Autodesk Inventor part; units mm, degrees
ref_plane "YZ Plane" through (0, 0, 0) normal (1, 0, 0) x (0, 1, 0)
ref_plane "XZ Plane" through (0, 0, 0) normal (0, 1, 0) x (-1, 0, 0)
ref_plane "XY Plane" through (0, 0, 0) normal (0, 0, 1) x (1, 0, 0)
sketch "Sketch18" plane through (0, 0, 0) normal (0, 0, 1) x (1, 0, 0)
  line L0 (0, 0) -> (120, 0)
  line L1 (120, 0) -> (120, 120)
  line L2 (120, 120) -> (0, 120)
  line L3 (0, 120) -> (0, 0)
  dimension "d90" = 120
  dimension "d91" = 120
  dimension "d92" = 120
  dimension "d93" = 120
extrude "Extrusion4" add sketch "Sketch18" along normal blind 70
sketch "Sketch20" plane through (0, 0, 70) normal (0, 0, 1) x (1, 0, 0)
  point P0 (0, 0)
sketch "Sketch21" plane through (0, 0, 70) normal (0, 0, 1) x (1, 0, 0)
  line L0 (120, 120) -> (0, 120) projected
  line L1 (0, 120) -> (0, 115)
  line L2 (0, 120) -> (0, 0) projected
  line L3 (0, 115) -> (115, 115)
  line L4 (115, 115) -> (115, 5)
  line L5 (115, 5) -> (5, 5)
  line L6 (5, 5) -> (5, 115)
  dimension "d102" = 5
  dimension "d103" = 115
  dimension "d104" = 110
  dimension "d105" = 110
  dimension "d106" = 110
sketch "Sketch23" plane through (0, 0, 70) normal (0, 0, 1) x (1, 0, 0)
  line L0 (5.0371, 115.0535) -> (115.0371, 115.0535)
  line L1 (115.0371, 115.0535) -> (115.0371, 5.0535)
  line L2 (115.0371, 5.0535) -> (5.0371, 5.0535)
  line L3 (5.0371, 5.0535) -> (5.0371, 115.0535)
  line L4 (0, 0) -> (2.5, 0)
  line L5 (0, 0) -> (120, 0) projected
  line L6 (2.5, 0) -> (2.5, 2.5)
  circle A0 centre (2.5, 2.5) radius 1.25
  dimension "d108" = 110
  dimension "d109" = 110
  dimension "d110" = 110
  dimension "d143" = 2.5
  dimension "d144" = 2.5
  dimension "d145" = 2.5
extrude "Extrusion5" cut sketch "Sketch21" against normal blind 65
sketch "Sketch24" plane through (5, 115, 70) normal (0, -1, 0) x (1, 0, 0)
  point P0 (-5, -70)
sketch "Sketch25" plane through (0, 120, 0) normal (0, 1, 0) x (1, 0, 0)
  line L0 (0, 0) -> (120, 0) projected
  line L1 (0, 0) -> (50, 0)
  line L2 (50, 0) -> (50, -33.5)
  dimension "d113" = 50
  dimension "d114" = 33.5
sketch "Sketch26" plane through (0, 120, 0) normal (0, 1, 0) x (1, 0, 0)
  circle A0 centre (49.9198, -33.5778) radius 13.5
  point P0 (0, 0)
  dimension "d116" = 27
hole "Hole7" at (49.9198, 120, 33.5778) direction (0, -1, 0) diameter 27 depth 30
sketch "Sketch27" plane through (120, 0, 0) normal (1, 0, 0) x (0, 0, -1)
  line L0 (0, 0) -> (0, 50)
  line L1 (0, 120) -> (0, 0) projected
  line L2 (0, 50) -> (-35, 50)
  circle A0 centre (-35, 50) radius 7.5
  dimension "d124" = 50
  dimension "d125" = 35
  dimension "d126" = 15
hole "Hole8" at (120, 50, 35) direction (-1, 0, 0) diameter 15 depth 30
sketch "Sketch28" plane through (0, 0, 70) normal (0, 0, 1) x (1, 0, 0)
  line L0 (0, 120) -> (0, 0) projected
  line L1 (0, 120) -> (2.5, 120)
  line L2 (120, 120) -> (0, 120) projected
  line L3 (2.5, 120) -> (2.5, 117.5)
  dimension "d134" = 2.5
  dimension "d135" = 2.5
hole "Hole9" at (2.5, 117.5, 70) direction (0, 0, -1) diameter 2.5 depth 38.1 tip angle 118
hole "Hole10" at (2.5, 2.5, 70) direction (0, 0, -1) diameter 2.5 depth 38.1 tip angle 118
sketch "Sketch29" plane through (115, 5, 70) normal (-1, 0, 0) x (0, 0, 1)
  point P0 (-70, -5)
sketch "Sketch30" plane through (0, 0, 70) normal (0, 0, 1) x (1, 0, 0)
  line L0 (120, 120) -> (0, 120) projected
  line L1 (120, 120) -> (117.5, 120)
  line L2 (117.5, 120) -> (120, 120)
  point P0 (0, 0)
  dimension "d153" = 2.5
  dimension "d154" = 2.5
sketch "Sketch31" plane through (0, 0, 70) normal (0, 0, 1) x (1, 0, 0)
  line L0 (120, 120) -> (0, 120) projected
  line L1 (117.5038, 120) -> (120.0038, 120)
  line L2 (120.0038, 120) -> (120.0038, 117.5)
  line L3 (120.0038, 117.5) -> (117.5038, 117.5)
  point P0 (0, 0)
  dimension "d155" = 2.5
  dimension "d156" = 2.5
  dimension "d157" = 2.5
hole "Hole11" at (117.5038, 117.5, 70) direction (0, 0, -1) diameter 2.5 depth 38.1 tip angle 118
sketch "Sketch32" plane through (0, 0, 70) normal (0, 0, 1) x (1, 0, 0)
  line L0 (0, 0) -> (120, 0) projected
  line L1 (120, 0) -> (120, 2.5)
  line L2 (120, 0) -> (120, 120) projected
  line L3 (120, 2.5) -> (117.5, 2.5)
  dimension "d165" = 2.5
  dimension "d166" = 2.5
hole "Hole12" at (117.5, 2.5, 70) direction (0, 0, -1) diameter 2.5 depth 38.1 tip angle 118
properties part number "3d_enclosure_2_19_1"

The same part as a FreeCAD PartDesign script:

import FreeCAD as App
import Part
import Sketcher

V = App.Vector
Q = App.Units.Quantity

doc = App.newDocument("Part")
body = doc.addObject("PartDesign::Body", "Body")

# Sketch on XY plane
sketch1 = body.newObject("Sketcher::SketchObject", "Sketch")
sketch1.AttachmentSupport = (doc.getObject("XY_Plane"), [""])
sketch1.MapMode = "FlatFace"
sketch1.addGeometry(Part.LineSegment(V(0, 120, 0), V(0, 0, 0)), False)
sketch1.addGeometry(Part.LineSegment(V(0, 0, 0), V(120, 0, 0)), False)
sketch1.addGeometry(Part.LineSegment(V(120, 0, 0), V(120, 120, 0)), False)
sketch1.addGeometry(Part.LineSegment(V(120, 120, 0), V(0, 120, 0)), False)
sketch1.addConstraint(Sketcher.Constraint("Coincident", 0, 2, 1, 1))
sketch1.addConstraint(Sketcher.Constraint("Coincident", 1, 2, 2, 1))
sketch1.addConstraint(Sketcher.Constraint("Coincident", 2, 2, 3, 1))
sketch1.addConstraint(Sketcher.Constraint("Coincident", 3, 2, 0, 1))
sketch1.addConstraint(Sketcher.Constraint("Vertical", 0))
sketch1.addConstraint(Sketcher.Constraint("Horizontal", 1))
sketch1.addConstraint(Sketcher.Constraint("Vertical", 2))
sketch1.addConstraint(Sketcher.Constraint("Horizontal", 3))
sketch1.addConstraint(Sketcher.Constraint("Coincident", 0, 2, -1, 1))
sketch1.addConstraint(Sketcher.Constraint("Equal", 3, 0))
sketch1.addConstraint(Sketcher.Constraint("DistanceX", 1, 1, 1, 2, Q("120 mm")))
pad1 = body.newObject("PartDesign::Pad", "Pad")
pad1.Profile = sketch1
pad1.Length = 70

# Sketch on XY plane
sketch2 = body.newObject("Sketcher::SketchObject", "Sketch001")
sketch2.AttachmentSupport = (doc.getObject("XY_Plane"), [""])
sketch2.MapMode = "FlatFace"
sketch2.AttachmentOffset = App.Placement(V(0, 0, 70), App.Rotation())
sketch2.addGeometry(Part.LineSegment(V(115, 115, 0), V(5, 115, 0)), False)
sketch2.addGeometry(Part.LineSegment(V(5, 115, 0), V(5, 5, 0)), False)
sketch2.addGeometry(Part.LineSegment(V(5, 5, 0), V(115, 5, 0)), False)
sketch2.addGeometry(Part.LineSegment(V(115, 5, 0), V(115, 115, 0)), False)
sketch2.addConstraint(Sketcher.Constraint("Coincident", 0, 2, 1, 1))
sketch2.addConstraint(Sketcher.Constraint("Coincident", 1, 2, 2, 1))
sketch2.addConstraint(Sketcher.Constraint("Coincident", 2, 2, 3, 1))
sketch2.addConstraint(Sketcher.Constraint("Coincident", 3, 2, 0, 1))
sketch2.addConstraint(Sketcher.Constraint("Horizontal", 0))
sketch2.addConstraint(Sketcher.Constraint("Vertical", 1))
sketch2.addConstraint(Sketcher.Constraint("Horizontal", 2))
sketch2.addConstraint(Sketcher.Constraint("Vertical", 3))
sketch2.addConstraint(Sketcher.Constraint("Equal", 2, 1))
sketch2.addConstraint(Sketcher.Constraint("DistanceX", 0, 2, 0, 1, Q("110 mm")))
sketch2.addConstraint(Sketcher.Constraint("DistanceX", -1, 1, 0, 2, Q("5 mm")))
sketch2.addConstraint(Sketcher.Constraint("DistanceY", -1, 1, 0, 2, Q("115 mm")))
pocket1 = body.newObject("PartDesign::Pocket", "Pocket")
pocket1.Profile = sketch2
pocket1.Length = 65

# Sketch on XZ plane
sketch3 = body.newObject("Sketcher::SketchObject", "Sketch002")
sketch3.AttachmentSupport = (doc.getObject("XZ_Plane"), [""])
sketch3.MapMode = "FlatFace"
sketch3.AttachmentOffset = App.Placement(V(0, 0, -120), App.Rotation())
sketch3.addGeometry(Part.Circle(V(50, 34, 0), V(0, 0, 1), 14), False)
sketch3.addConstraint(Sketcher.Constraint("Diameter", 0, Q("27 mm")))
sketch3.addConstraint(Sketcher.Constraint("DistanceX", -1, 1, 0, 3, Q("49.9198 mm")))
sketch3.addConstraint(Sketcher.Constraint("DistanceY", -1, 1, 0, 3, Q("33.5778 mm")))
doc.recompute()
hole = body.newObject("PartDesign::Hole", "Hole")
hole.Profile = sketch3
hole.ThreadType = "None"
hole.Diameter = 27
hole.DepthType = "Dimension"
hole.Depth = 30
hole.DrillPoint = "Flat"
hole.Reversed = True

# Sketch on YZ plane
sketch4 = body.newObject("Sketcher::SketchObject", "Sketch003")
sketch4.AttachmentSupport = (doc.getObject("YZ_Plane"), [""])
sketch4.MapMode = "FlatFace"
sketch4.AttachmentOffset = App.Placement(V(0, 0, 120), App.Rotation())
sketch4.addGeometry(Part.Circle(V(50, 35, 0), V(0, 0, 1), 8), False)
sketch4.addConstraint(Sketcher.Constraint("Diameter", 0, Q("15 mm")))
sketch4.addConstraint(Sketcher.Constraint("DistanceX", -1, 1, 0, 3, Q("50 mm")))
sketch4.addConstraint(Sketcher.Constraint("DistanceY", -1, 1, 0, 3, Q("35 mm")))
doc.recompute()
hole2 = body.newObject("PartDesign::Hole", "Hole001")
hole2.Profile = sketch4
hole2.ThreadType = "None"
hole2.Diameter = 15
hole2.DepthType = "Dimension"
hole2.Depth = 30
hole2.DrillPoint = "Flat"

# Sketch on XY plane
sketch5 = body.newObject("Sketcher::SketchObject", "Sketch004")
sketch5.AttachmentSupport = (doc.getObject("XY_Plane"), [""])
sketch5.MapMode = "FlatFace"
sketch5.AttachmentOffset = App.Placement(V(0, 0, 70), App.Rotation())
sketch5.addGeometry(Part.Circle(V(2.5, 117.5, 0), V(0, 0, 1), 1.2), False)
sketch5.addConstraint(Sketcher.Constraint("Diameter", 0, Q("2.5 mm")))
sketch5.addConstraint(Sketcher.Constraint("DistanceX", -1, 1, 0, 3, Q("2.5 mm")))
sketch5.addConstraint(Sketcher.Constraint("DistanceY", -1, 1, 0, 3, Q("117.5 mm")))
doc.recompute()
hole3 = body.newObject("PartDesign::Hole", "Hole002")
hole3.Profile = sketch5
hole3.ThreadType = "None"
hole3.Diameter = 2.5
hole3.DepthType = "Dimension"
hole3.Depth = 38.1
hole3.DrillPoint = "Angled"
hole3.DrillPointAngle = 118

# Sketch on XY plane
sketch6 = body.newObject("Sketcher::SketchObject", "Sketch005")
sketch6.AttachmentSupport = (doc.getObject("XY_Plane"), [""])
sketch6.MapMode = "FlatFace"
sketch6.AttachmentOffset = App.Placement(V(0, 0, 70), App.Rotation())
sketch6.addGeometry(Part.Circle(V(2.5, 2.5, 0), V(0, 0, 1), 1.2), False)
sketch6.addConstraint(Sketcher.Constraint("Diameter", 0, Q("2.5 mm")))
sketch6.addConstraint(Sketcher.Constraint("DistanceX", -1, 1, 0, 3, Q("2.5 mm")))
sketch6.addConstraint(Sketcher.Constraint("DistanceY", -1, 1, 0, 3, Q("2.5 mm")))
doc.recompute()
hole4 = body.newObject("PartDesign::Hole", "Hole003")
hole4.Profile = sketch6
hole4.ThreadType = "None"
hole4.Diameter = 2.5
hole4.DepthType = "Dimension"
hole4.Depth = 38.1
hole4.DrillPoint = "Angled"
hole4.DrillPointAngle = 118

# Sketch on XY plane
sketch7 = body.newObject("Sketcher::SketchObject", "Sketch006")
sketch7.AttachmentSupport = (doc.getObject("XY_Plane"), [""])
sketch7.MapMode = "FlatFace"
sketch7.AttachmentOffset = App.Placement(V(0, 0, 70), App.Rotation())
sketch7.addGeometry(Part.Circle(V(117.5, 117.5, 0), V(0, 0, 1), 1.2), False)
sketch7.addConstraint(Sketcher.Constraint("Diameter", 0, Q("2.5 mm")))
sketch7.addConstraint(Sketcher.Constraint("DistanceY", -1, 1, 0, 3, Q("117.5 mm")))
sketch7.addConstraint(Sketcher.Constraint("DistanceX", -1, 1, 0, 3, Q("117.5038 mm")))
doc.recompute()
hole5 = body.newObject("PartDesign::Hole", "Hole004")
hole5.Profile = sketch7
hole5.ThreadType = "None"
hole5.Diameter = 2.5
hole5.DepthType = "Dimension"
hole5.Depth = 38.1
hole5.DrillPoint = "Angled"
hole5.DrillPointAngle = 118

# Sketch on XY plane
sketch8 = body.newObject("Sketcher::SketchObject", "Sketch007")
sketch8.AttachmentSupport = (doc.getObject("XY_Plane"), [""])
sketch8.MapMode = "FlatFace"
sketch8.AttachmentOffset = App.Placement(V(0, 0, 70), App.Rotation())
sketch8.addGeometry(Part.Circle(V(117.5, 2.5, 0), V(0, 0, 1), 1.2), False)
sketch8.addConstraint(Sketcher.Constraint("Diameter", 0, Q("2.5 mm")))
sketch8.addConstraint(Sketcher.Constraint("DistanceX", -1, 1, 0, 3, Q("117.5 mm")))
sketch8.addConstraint(Sketcher.Constraint("DistanceY", -1, 1, 0, 3, Q("2.5 mm")))
doc.recompute()
hole6 = body.newObject("PartDesign::Hole", "Hole005")
hole6.Profile = sketch8
hole6.ThreadType = "None"
hole6.Diameter = 2.5
hole6.DepthType = "Dimension"
hole6.Depth = 38.1
hole6.DrillPoint = "Angled"
hole6.DrillPointAngle = 118

doc.recompute()
